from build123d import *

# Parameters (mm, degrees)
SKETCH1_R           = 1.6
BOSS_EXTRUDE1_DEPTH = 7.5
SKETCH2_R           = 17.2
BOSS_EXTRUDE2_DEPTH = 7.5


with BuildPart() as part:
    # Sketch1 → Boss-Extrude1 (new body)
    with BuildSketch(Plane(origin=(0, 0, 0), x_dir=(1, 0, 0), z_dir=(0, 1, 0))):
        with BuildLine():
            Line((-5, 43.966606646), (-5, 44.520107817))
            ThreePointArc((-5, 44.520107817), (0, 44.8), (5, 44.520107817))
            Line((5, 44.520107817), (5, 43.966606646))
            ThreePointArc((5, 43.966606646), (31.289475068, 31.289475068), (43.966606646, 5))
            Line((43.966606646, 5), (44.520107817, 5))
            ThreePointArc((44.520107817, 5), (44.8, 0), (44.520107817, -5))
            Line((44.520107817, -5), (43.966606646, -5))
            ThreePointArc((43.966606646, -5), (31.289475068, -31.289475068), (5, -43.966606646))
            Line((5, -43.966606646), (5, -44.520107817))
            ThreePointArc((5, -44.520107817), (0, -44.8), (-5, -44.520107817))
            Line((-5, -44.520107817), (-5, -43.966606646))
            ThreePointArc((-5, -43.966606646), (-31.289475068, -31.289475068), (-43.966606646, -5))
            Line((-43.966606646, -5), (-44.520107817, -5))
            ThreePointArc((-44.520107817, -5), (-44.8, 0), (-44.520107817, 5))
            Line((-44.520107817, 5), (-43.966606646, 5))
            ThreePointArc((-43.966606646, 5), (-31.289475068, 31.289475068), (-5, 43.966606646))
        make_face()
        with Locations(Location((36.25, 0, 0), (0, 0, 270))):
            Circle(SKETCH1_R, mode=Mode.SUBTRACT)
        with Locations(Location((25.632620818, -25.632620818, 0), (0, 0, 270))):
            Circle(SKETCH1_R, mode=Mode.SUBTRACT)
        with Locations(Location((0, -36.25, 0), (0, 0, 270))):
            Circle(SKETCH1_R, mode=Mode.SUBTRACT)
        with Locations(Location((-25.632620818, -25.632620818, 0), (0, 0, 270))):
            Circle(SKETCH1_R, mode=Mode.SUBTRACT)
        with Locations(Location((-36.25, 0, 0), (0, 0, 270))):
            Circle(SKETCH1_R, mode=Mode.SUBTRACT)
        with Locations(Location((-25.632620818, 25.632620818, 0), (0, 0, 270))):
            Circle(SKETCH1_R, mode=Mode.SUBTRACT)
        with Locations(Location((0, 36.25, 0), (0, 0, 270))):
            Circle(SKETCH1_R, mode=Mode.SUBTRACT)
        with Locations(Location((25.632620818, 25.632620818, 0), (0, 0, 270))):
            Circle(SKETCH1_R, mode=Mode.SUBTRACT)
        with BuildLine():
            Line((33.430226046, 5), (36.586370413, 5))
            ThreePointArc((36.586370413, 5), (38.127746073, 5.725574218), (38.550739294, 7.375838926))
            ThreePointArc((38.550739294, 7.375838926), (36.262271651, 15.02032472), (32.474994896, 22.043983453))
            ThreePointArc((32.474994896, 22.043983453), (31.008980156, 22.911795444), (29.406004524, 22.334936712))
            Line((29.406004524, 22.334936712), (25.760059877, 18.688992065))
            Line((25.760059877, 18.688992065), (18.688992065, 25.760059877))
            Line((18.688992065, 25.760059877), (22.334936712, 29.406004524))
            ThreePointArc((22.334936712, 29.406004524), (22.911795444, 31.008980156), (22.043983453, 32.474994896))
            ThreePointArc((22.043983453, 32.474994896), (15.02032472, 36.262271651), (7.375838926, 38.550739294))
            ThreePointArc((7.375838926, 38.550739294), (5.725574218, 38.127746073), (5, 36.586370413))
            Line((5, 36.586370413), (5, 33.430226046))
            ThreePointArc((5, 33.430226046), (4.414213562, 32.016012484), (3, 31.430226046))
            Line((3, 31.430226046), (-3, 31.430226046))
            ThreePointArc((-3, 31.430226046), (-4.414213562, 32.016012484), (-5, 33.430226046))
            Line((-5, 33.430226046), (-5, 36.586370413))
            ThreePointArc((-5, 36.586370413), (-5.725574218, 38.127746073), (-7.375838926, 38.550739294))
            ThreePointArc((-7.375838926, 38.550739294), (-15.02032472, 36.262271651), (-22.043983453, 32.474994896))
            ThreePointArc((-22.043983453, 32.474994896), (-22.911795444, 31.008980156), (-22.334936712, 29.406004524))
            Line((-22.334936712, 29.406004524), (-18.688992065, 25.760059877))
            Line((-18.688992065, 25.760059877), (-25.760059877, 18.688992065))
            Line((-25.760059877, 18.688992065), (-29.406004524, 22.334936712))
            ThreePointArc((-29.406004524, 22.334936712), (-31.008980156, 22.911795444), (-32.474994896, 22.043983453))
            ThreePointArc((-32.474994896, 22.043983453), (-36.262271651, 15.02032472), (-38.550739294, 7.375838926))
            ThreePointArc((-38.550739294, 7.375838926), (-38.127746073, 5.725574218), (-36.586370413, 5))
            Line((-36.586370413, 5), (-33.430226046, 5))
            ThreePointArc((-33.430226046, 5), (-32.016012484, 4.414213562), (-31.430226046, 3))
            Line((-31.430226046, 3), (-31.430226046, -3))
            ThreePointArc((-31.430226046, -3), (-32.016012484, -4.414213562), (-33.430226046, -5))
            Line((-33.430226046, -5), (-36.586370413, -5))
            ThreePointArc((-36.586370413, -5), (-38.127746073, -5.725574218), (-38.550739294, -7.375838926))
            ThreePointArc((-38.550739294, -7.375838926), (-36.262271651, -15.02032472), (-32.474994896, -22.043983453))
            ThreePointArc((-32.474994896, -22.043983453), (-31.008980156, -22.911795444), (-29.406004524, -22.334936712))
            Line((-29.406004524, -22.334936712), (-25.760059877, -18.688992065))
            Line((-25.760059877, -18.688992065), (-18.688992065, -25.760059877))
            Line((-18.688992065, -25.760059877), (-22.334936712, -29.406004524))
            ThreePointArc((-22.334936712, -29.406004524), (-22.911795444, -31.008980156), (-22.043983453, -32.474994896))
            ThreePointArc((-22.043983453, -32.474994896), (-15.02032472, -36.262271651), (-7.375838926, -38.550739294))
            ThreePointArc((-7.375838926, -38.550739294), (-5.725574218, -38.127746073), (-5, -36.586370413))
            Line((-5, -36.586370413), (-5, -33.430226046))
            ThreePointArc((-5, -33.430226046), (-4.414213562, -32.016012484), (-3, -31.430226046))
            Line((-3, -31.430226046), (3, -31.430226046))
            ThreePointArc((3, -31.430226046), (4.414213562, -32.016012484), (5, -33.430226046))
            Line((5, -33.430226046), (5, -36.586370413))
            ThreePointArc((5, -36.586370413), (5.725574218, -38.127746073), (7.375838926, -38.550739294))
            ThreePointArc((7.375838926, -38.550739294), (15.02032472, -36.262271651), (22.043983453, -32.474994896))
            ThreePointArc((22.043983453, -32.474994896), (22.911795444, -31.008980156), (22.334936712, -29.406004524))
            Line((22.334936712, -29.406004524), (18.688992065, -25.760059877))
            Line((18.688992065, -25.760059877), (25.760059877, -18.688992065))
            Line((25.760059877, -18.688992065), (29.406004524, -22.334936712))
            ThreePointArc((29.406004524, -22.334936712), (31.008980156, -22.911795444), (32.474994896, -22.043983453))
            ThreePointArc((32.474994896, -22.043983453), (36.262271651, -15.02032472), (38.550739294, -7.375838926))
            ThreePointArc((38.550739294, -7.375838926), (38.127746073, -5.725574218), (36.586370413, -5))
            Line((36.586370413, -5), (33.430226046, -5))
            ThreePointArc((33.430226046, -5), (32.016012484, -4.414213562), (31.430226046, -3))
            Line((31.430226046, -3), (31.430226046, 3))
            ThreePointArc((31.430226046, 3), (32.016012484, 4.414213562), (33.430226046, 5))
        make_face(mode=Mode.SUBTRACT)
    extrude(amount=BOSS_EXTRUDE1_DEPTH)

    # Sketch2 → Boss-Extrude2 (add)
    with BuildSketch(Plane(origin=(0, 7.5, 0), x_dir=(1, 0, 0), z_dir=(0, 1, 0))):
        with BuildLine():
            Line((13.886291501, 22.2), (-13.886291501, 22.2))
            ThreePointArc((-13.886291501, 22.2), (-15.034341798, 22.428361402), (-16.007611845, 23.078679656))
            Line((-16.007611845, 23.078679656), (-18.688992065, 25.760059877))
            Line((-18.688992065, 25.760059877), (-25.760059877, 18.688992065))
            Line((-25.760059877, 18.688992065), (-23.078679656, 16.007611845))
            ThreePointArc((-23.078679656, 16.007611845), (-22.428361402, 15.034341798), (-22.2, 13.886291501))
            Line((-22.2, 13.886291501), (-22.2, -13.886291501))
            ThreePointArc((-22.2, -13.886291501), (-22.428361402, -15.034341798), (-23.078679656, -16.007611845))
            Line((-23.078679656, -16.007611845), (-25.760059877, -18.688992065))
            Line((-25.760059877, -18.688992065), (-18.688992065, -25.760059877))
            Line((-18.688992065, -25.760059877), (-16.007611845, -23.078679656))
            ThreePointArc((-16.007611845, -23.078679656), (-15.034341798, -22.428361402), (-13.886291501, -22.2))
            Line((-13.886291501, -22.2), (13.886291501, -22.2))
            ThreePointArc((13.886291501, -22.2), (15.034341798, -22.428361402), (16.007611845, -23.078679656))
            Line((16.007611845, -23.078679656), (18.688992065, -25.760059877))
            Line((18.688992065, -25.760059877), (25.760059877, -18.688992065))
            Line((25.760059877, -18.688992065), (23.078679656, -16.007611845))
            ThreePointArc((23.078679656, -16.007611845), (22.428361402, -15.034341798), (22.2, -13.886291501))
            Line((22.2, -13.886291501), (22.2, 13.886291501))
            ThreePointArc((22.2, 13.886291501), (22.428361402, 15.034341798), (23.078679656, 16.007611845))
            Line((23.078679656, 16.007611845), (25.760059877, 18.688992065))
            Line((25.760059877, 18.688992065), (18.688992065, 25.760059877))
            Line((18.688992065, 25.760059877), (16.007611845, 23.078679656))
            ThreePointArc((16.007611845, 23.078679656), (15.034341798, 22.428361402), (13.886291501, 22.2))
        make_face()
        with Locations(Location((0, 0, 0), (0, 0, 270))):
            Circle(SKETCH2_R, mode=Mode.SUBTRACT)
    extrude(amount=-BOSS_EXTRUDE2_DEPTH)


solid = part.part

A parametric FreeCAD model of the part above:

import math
import FreeCAD as App
import Part
import Sketcher
from FreeCAD import Vector
Q = App.Units.Quantity

doc = App.newDocument("Part")
params = doc.addObject("Spreadsheet::Sheet", "Params")
for row, (alias, value) in enumerate([
    ("sketch1_radius", "2 mm"),
    ("sketch1_diameter", "3.2 mm"),
    ("sketch1_radius2", "44.8 mm"),
    ("sketch1_width", "6 mm"),
    ("sketch1_radius3", "44.25 mm"),
    ("pad1_length", "7.5 mm"),
    ("sketch2_radius", "3 mm"),
    ("sketch2_diameter", "34.4 mm"),
    ("sketch2_length", "10 mm"),
    ("pad2_length", "7.5 mm"),
], start=1):
    params.set(f"A{row}", alias)
    params.set(f"B{row}", "=" + value)
    params.setAlias(f"B{row}", alias)

body = doc.addObject("PartDesign::Body", "Body")

# Sketch on XZ plane
sketch1 = body.newObject("Sketcher::SketchObject", "Sketch")
sketch1.AttachmentSupport = (doc.getObject("XZ_Plane"), [""])
sketch1.MapMode = "FlatFace"
sketch1.addGeometry([
    Part.LineSegment(Vector(-5, -44.520108, 0), Vector(-5, -43.966607, 0)),  # 0
    Part.ArcOfCircle(Part.Circle(Vector(0, 0, 0), Vector(0, 0, 1), 44.25), math.radians(-173.512044), math.radians(-96.487956)),  # 1
    Part.LineSegment(Vector(-43.966607, -5, 0), Vector(-44.520108, -5, 0)),  # 2
    Part.ArcOfCircle(Part.Circle(Vector(0, 0, 0), Vector(0, 0, 1), 44.8), math.radians(173.592031), math.radians(186.407969)),  # 3
    Part.LineSegment(Vector(-44.520108, 5, 0), Vector(-43.966607, 5, 0)),  # 4
    Part.ArcOfCircle(Part.Circle(Vector(0, 0, 0), Vector(0, 0, 1), 44.25), math.radians(96.487956), math.radians(173.512044)),  # 5
    Part.LineSegment(Vector(-5, 43.966607, 0), Vector(-5, 44.520108, 0)),  # 6
    Part.ArcOfCircle(Part.Circle(Vector(0, 0, 0), Vector(0, 0, 1), 44.8), math.radians(83.592031), math.radians(96.407969)),  # 7
    Part.LineSegment(Vector(5, 44.520108, 0), Vector(5, 43.966607, 0)),  # 8
    Part.ArcOfCircle(Part.Circle(Vector(0, 0, 0), Vector(0, 0, 1), 44.25), math.radians(6.487956), math.radians(83.512044)),  # 9
    Part.LineSegment(Vector(43.966607, 5, 0), Vector(44.520108, 5, 0)),  # 10
    Part.ArcOfCircle(Part.Circle(Vector(0, 0, 0), Vector(0, 0, 1), 44.8), math.radians(-6.407969), math.radians(6.407969)),  # 11
    Part.LineSegment(Vector(44.520108, -5, 0), Vector(43.966607, -5, 0)),  # 12
    Part.ArcOfCircle(Part.Circle(Vector(0, 0, 0), Vector(0, 0, 1), 44.25), math.radians(-83.512044), math.radians(-6.487956)),  # 13
    Part.LineSegment(Vector(5, -43.966607, 0), Vector(5, -44.520108, 0)),  # 14
    Part.ArcOfCircle(Part.Circle(Vector(0, 0, 0), Vector(0, 0, 1), 44.8), math.radians(-96.407969), math.radians(-83.592031)),  # 15
    Part.Circle(Vector(25.632621, 25.632621, 0), Vector(0, 0, 1), 1.6),  # 16
    Part.Circle(Vector(0, 36.25, 0), Vector(0, 0, 1), 1.6),  # 17
    Part.Circle(Vector(-25.632621, 25.632621, 0), Vector(0, 0, 1), 1.6),  # 18
    Part.Circle(Vector(36.25, 0, 0), Vector(0, 0, 1), 1.6),  # 19
    Part.Circle(Vector(25.632621, -25.632621, 0), Vector(0, 0, 1), 1.6),  # 20
    Part.ArcOfCircle(Part.Circle(Vector(33.430226, -3, 0), Vector(0, 0, 1), 2), math.radians(-180), math.radians(-90)),  # 21
    Part.LineSegment(Vector(31.430226, -3, 0), Vector(31.430226, 3, 0)),  # 22
    Part.ArcOfCircle(Part.Circle(Vector(33.430226, 3, 0), Vector(0, 0, 1), 2), math.radians(90), math.radians(180)),  # 23
    Part.LineSegment(Vector(33.430226, 5, 0), Vector(36.58637, 5, 0)),  # 24
    Part.ArcOfCircle(Part.Circle(Vector(36.58637, 7, 0), Vector(0, 0, 1), 2), math.radians(-90), math.radians(10.831391)),  # 25
    Part.ArcOfCircle(Part.Circle(Vector(0, 0, 0), Vector(0, 0, 1), 39.25), math.radians(10.831391), math.radians(34.168609)),  # 26
    Part.ArcOfCircle(Part.Circle(Vector(30.820218, 20.920723, 0), Vector(0, 0, 1), 2), math.radians(34.168609), math.radians(135)),  # 27
    Part.LineSegment(Vector(29.406005, 22.334937, 0), Vector(25.76006, 18.688992, 0)),  # 28
    Part.LineSegment(Vector(25.76006, 18.688992, 0), Vector(18.688992, 25.76006, 0)),  # 29
    Part.LineSegment(Vector(18.688992, 25.76006, 0), Vector(22.334937, 29.406005, 0)),  # 30
    Part.ArcOfCircle(Part.Circle(Vector(20.920723, 30.820218, 0), Vector(0, 0, 1), 2), math.radians(-45), math.radians(55.831391)),  # 31
    Part.ArcOfCircle(Part.Circle(Vector(0, 0, 0), Vector(0, 0, 1), 39.25), math.radians(55.831391), math.radians(79.168609)),  # 32
    Part.ArcOfCircle(Part.Circle(Vector(7, 36.58637, 0), Vector(0, 0, 1), 2), math.radians(79.168609), math.radians(180)),  # 33
    Part.LineSegment(Vector(5, 36.58637, 0), Vector(5, 33.430226, 0)),  # 34
    Part.ArcOfCircle(Part.Circle(Vector(3, 33.430226, 0), Vector(0, 0, 1), 2), math.radians(-90), math.radians(0)),  # 35
    Part.LineSegment(Vector(3, 31.430226, 0), Vector(-3, 31.430226, 0)),  # 36
    Part.ArcOfCircle(Part.Circle(Vector(-3, 33.430226, 0), Vector(0, 0, 1), 2), math.radians(-180), math.radians(-90)),  # 37
    Part.LineSegment(Vector(-5, 33.430226, 0), Vector(-5, 36.58637, 0)),  # 38
    Part.ArcOfCircle(Part.Circle(Vector(-7, 36.58637, 0), Vector(0, 0, 1), 2), math.radians(0), math.radians(100.831391)),  # 39
    Part.ArcOfCircle(Part.Circle(Vector(0, 0, 0), Vector(0, 0, 1), 39.25), math.radians(100.831391), math.radians(124.168609)),  # 40
    Part.ArcOfCircle(Part.Circle(Vector(-20.920723, 30.820218, 0), Vector(0, 0, 1), 2), math.radians(124.168609), math.radians(225)),  # 41
    Part.LineSegment(Vector(-22.334937, 29.406005, 0), Vector(-18.688992, 25.76006, 0)),  # 42
    Part.LineSegment(Vector(-18.688992, 25.76006, 0), Vector(-25.76006, 18.688992, 0)),  # 43
    Part.LineSegment(Vector(-25.76006, 18.688992, 0), Vector(-29.406005, 22.334937, 0)),  # 44
    Part.ArcOfCircle(Part.Circle(Vector(-30.820218, 20.920723, 0), Vector(0, 0, 1), 2), math.radians(45), math.radians(145.831391)),  # 45
    Part.ArcOfCircle(Part.Circle(Vector(0, 0, 0), Vector(0, 0, 1), 39.25), math.radians(145.831391), math.radians(169.168609)),  # 46
    Part.ArcOfCircle(Part.Circle(Vector(-36.58637, 7, 0), Vector(0, 0, 1), 2), math.radians(169.168609), math.radians(270)),  # 47
    Part.LineSegment(Vector(-36.58637, 5, 0), Vector(-33.430226, 5, 0)),  # 48
    Part.ArcOfCircle(Part.Circle(Vector(-33.430226, 3, 0), Vector(0, 0, 1), 2), math.radians(0), math.radians(90)),  # 49
    Part.LineSegment(Vector(-31.430226, 3, 0), Vector(-31.430226, -3, 0)),  # 50
    Part.ArcOfCircle(Part.Circle(Vector(-33.430226, -3, 0), Vector(0, 0, 1), 2), math.radians(-90), math.radians(0)),  # 51
    Part.LineSegment(Vector(-33.430226, -5, 0), Vector(-36.58637, -5, 0)),  # 52
    Part.ArcOfCircle(Part.Circle(Vector(-36.58637, -7, 0), Vector(0, 0, 1), 2), math.radians(90), math.radians(190.831391)),  # 53
    Part.ArcOfCircle(Part.Circle(Vector(0, 0, 0), Vector(0, 0, 1), 39.25), math.radians(-169.168609), math.radians(-145.831391)),  # 54
    Part.ArcOfCircle(Part.Circle(Vector(-30.820218, -20.920723, 0), Vector(0, 0, 1), 2), math.radians(-145.831391), math.radians(-45)),  # 55
    Part.LineSegment(Vector(-29.406005, -22.334937, 0), Vector(-25.76006, -18.688992, 0)),  # 56
    Part.LineSegment(Vector(-25.76006, -18.688992, 0), Vector(-18.688992, -25.76006, 0)),  # 57
    Part.LineSegment(Vector(-18.688992, -25.76006, 0), Vector(-22.334937, -29.406005, 0)),  # 58
    Part.ArcOfCircle(Part.Circle(Vector(-20.920723, -30.820218, 0), Vector(0, 0, 1), 2), math.radians(135), math.radians(235.831391)),  # 59
    Part.ArcOfCircle(Part.Circle(Vector(0, 0, 0), Vector(0, 0, 1), 39.25), math.radians(-124.168609), math.radians(-100.831391)),  # 60
    Part.ArcOfCircle(Part.Circle(Vector(-7, -36.58637, 0), Vector(0, 0, 1), 2), math.radians(-100.831391), math.radians(0)),  # 61
    Part.LineSegment(Vector(-5, -36.58637, 0), Vector(-5, -33.430226, 0)),  # 62
    Part.ArcOfCircle(Part.Circle(Vector(-3, -33.430226, 0), Vector(0, 0, 1), 2), math.radians(90), math.radians(180)),  # 63
    Part.LineSegment(Vector(-3, -31.430226, 0), Vector(3, -31.430226, 0)),  # 64
    Part.ArcOfCircle(Part.Circle(Vector(3, -33.430226, 0), Vector(0, 0, 1), 2), math.radians(0), math.radians(90)),  # 65
    Part.LineSegment(Vector(5, -33.430226, 0), Vector(5, -36.58637, 0)),  # 66
    Part.ArcOfCircle(Part.Circle(Vector(7, -36.58637, 0), Vector(0, 0, 1), 2), math.radians(180), math.radians(280.831391)),  # 67
    Part.ArcOfCircle(Part.Circle(Vector(0, 0, 0), Vector(0, 0, 1), 39.25), math.radians(-79.168609), math.radians(-55.831391)),  # 68
    Part.ArcOfCircle(Part.Circle(Vector(20.920723, -30.820218, 0), Vector(0, 0, 1), 2), math.radians(-55.831391), math.radians(45)),  # 69
    Part.LineSegment(Vector(22.334937, -29.406005, 0), Vector(18.688992, -25.76006, 0)),  # 70
    Part.LineSegment(Vector(18.688992, -25.76006, 0), Vector(25.76006, -18.688992, 0)),  # 71
    Part.LineSegment(Vector(25.76006, -18.688992, 0), Vector(29.406005, -22.334937, 0)),  # 72
    Part.ArcOfCircle(Part.Circle(Vector(30.820218, -20.920723, 0), Vector(0, 0, 1), 2), math.radians(-135), math.radians(-34.168609)),  # 73
    Part.ArcOfCircle(Part.Circle(Vector(0, 0, 0), Vector(0, 0, 1), 39.25), math.radians(-34.168609), math.radians(-10.831391)),  # 74
    Part.ArcOfCircle(Part.Circle(Vector(36.58637, -7, 0), Vector(0, 0, 1), 2), math.radians(-10.831391), math.radians(90)),  # 75
    Part.LineSegment(Vector(36.58637, -5, 0), Vector(33.430226, -5, 0)),  # 76
    Part.Circle(Vector(-36.25, 0, 0), Vector(0, 0, 1), 1.6),  # 77
    Part.Circle(Vector(0, -36.25, 0), Vector(0, 0, 1), 1.6),  # 78
    Part.Circle(Vector(-25.632621, -25.632621, 0), Vector(0, 0, 1), 1.6),  # 79
], False)
sketch1.addConstraint([
    Sketcher.Constraint("Coincident", 0, 2, 1, 2),
    Sketcher.Constraint("Coincident", 1, 1, 2, 1),
    Sketcher.Constraint("Coincident", 2, 2, 3, 2),
    Sketcher.Constraint("Coincident", 3, 1, 4, 1),
    Sketcher.Constraint("Coincident", 4, 2, 5, 2),
    Sketcher.Constraint("Coincident", 5, 1, 6, 1),
    Sketcher.Constraint("Coincident", 6, 2, 7, 2),
    Sketcher.Constraint("Coincident", 7, 1, 8, 1),
    Sketcher.Constraint("Coincident", 8, 2, 9, 2),
    Sketcher.Constraint("Coincident", 9, 1, 10, 1),
    Sketcher.Constraint("Coincident", 10, 2, 11, 2),
    Sketcher.Constraint("Coincident", 11, 1, 12, 1),
    Sketcher.Constraint("Coincident", 12, 2, 13, 2),
    Sketcher.Constraint("Coincident", 13, 1, 14, 1),
    Sketcher.Constraint("Coincident", 14, 2, 15, 2),
    Sketcher.Constraint("Coincident", 15, 1, 0, 1),
    Sketcher.Constraint("Tangent", 21, 1, 22, 1),
    Sketcher.Constraint("Tangent", 22, 2, 23, 2),
    Sketcher.Constraint("Tangent", 23, 1, 24, 1),
    Sketcher.Constraint("Tangent", 24, 2, 25, 1),
    Sketcher.Constraint("Tangent", 25, 2, 26, 1),
    Sketcher.Constraint("Tangent", 26, 2, 27, 1),
    Sketcher.Constraint("Tangent", 27, 2, 28, 1),
    Sketcher.Constraint("Coincident", 28, 2, 29, 1),
    Sketcher.Constraint("Coincident", 29, 2, 30, 1),
    Sketcher.Constraint("Tangent", 30, 2, 31, 1),
    Sketcher.Constraint("Tangent", 31, 2, 32, 1),
    Sketcher.Constraint("Tangent", 32, 2, 33, 1),
    Sketcher.Constraint("Tangent", 33, 2, 34, 1),
    Sketcher.Constraint("Tangent", 34, 2, 35, 2),
    Sketcher.Constraint("Tangent", 35, 1, 36, 1),
    Sketcher.Constraint("Tangent", 36, 2, 37, 2),
    Sketcher.Constraint("Tangent", 37, 1, 38, 1),
    Sketcher.Constraint("Tangent", 38, 2, 39, 1),
    Sketcher.Constraint("Tangent", 39, 2, 40, 1),
    Sketcher.Constraint("Tangent", 40, 2, 41, 1),
    Sketcher.Constraint("Tangent", 41, 2, 42, 1),
    Sketcher.Constraint("Coincident", 42, 2, 43, 1),
    Sketcher.Constraint("Coincident", 43, 2, 44, 1),
    Sketcher.Constraint("Tangent", 44, 2, 45, 1),
    Sketcher.Constraint("Tangent", 45, 2, 46, 1),
    Sketcher.Constraint("Tangent", 46, 2, 47, 1),
    Sketcher.Constraint("Tangent", 47, 2, 48, 1),
    Sketcher.Constraint("Tangent", 48, 2, 49, 2),
    Sketcher.Constraint("Tangent", 49, 1, 50, 1),
    Sketcher.Constraint("Tangent", 50, 2, 51, 2),
    Sketcher.Constraint("Tangent", 51, 1, 52, 1),
    Sketcher.Constraint("Tangent", 52, 2, 53, 1),
    Sketcher.Constraint("Tangent", 53, 2, 54, 1),
    Sketcher.Constraint("Tangent", 54, 2, 55, 1),
    Sketcher.Constraint("Tangent", 55, 2, 56, 1),
    Sketcher.Constraint("Coincident", 56, 2, 57, 1),
    Sketcher.Constraint("Coincident", 57, 2, 58, 1),
    Sketcher.Constraint("Tangent", 58, 2, 59, 1),
    Sketcher.Constraint("Tangent", 59, 2, 60, 1),
    Sketcher.Constraint("Tangent", 60, 2, 61, 1),
    Sketcher.Constraint("Tangent", 61, 2, 62, 1),
    Sketcher.Constraint("Tangent", 62, 2, 63, 2),
    Sketcher.Constraint("Tangent", 63, 1, 64, 1),
    Sketcher.Constraint("Tangent", 64, 2, 65, 2),
    Sketcher.Constraint("Tangent", 65, 1, 66, 1),
    Sketcher.Constraint("Tangent", 66, 2, 67, 1),
    Sketcher.Constraint("Tangent", 67, 2, 68, 1),
    Sketcher.Constraint("Tangent", 68, 2, 69, 1),
    Sketcher.Constraint("Tangent", 69, 2, 70, 1),
    Sketcher.Constraint("Coincident", 70, 2, 71, 1),
    Sketcher.Constraint("Coincident", 71, 2, 72, 1),
    Sketcher.Constraint("Tangent", 72, 2, 73, 1),
    Sketcher.Constraint("Tangent", 73, 2, 74, 1),
    Sketcher.Constraint("Tangent", 74, 2, 75, 1),
    Sketcher.Constraint("Tangent", 75, 2, 76, 1),
    Sketcher.Constraint("Tangent", 76, 2, 21, 2),
    Sketcher.Constraint("Vertical", 0),
    Sketcher.Constraint("Horizontal", 2),
    Sketcher.Constraint("Horizontal", 4),
    Sketcher.Constraint("Vertical", 6),
    Sketcher.Constraint("Vertical", 8),
    Sketcher.Constraint("Horizontal", 10),
    Sketcher.Constraint("Horizontal", 12),
    Sketcher.Constraint("Vertical", 14),
    Sketcher.Constraint("Vertical", 22),
    Sketcher.Constraint("Horizontal", 24),
    Sketcher.Constraint("Vertical", 34),
    Sketcher.Constraint("Horizontal", 36),
    Sketcher.Constraint("Vertical", 38),
    Sketcher.Constraint("Horizontal", 48),
    Sketcher.Constraint("Vertical", 50),
    Sketcher.Constraint("Horizontal", 52),
    Sketcher.Constraint("Vertical", 62),
    Sketcher.Constraint("Horizontal", 64),
    Sketcher.Constraint("Vertical", 66),
    Sketcher.Constraint("Horizontal", 76),
    Sketcher.Constraint("Coincident", 1, 3, -1, 1),
    Sketcher.Constraint("Coincident", 3, 3, -1, 1),
    Sketcher.Constraint("Coincident", 5, 3, -1, 1),
    Sketcher.Constraint("Coincident", 7, 3, -1, 1),
    Sketcher.Constraint("Coincident", 9, 3, -1, 1),
    Sketcher.Constraint("Coincident", 11, 3, -1, 1),
    Sketcher.Constraint("Coincident", 13, 3, -1, 1),
    Sketcher.Constraint("Coincident", 15, 3, -1, 1),
    Sketcher.Constraint("Coincident", 26, 3, -1, 1),
    Sketcher.Constraint("Coincident", 32, 3, -1, 1),
    Sketcher.Constraint("Coincident", 40, 3, -1, 1),
    Sketcher.Constraint("Coincident", 46, 3, -1, 1),
    Sketcher.Constraint("Coincident", 54, 3, -1, 1),
    Sketcher.Constraint("Coincident", 60, 3, -1, 1),
    Sketcher.Constraint("Coincident", 68, 3, -1, 1),
    Sketcher.Constraint("Coincident", 74, 3, -1, 1),
    Sketcher.Constraint("Equal", 1, 5),
    Sketcher.Constraint("Equal", 3, 7),
    Sketcher.Constraint("Equal", 5, 9),
    Sketcher.Constraint("Equal", 7, 11),
    Sketcher.Constraint("Equal", 9, 13),
    Sketcher.Constraint("Equal", 11, 15),
    Sketcher.Constraint("Equal", 16, 17),
    Sketcher.Constraint("Equal", 17, 18),
    Sketcher.Constraint("Equal", 18, 19),
    Sketcher.Constraint("Equal", 19, 20),
    Sketcher.Constraint("Equal", 21, 23),
    Sketcher.Constraint("Equal", 23, 25),
    Sketcher.Constraint("Equal", 25, 27),
    Sketcher.Constraint("Equal", 27, 31),
    Sketcher.Constraint("Equal", 26, 32),
    Sketcher.Constraint("Equal", 31, 33),
    Sketcher.Constraint("Equal", 33, 35),
    Sketcher.Constraint("Equal", 35, 37),
    Sketcher.Constraint("Equal", 37, 39),
    Sketcher.Constraint("Equal", 32, 40),
    Sketcher.Constraint("Equal", 39, 41),
    Sketcher.Constraint("Equal", 41, 45),
    Sketcher.Constraint("Equal", 40, 46),
    Sketcher.Constraint("Equal", 45, 47),
    Sketcher.Constraint("Equal", 47, 49),
    Sketcher.Constraint("Equal", 49, 51),
    Sketcher.Constraint("Equal", 51, 53),
    Sketcher.Constraint("Equal", 46, 54),
    Sketcher.Constraint("Equal", 53, 55),
    Sketcher.Constraint("Equal", 55, 59),
    Sketcher.Constraint("Equal", 54, 60),
    Sketcher.Constraint("Equal", 59, 61),
    Sketcher.Constraint("Equal", 61, 63),
    Sketcher.Constraint("Equal", 63, 65),
    Sketcher.Constraint("Equal", 65, 67),
    Sketcher.Constraint("Equal", 60, 68),
    Sketcher.Constraint("Equal", 67, 69),
    Sketcher.Constraint("Equal", 69, 73),
    Sketcher.Constraint("Equal", 68, 74),
    Sketcher.Constraint("Equal", 73, 75),
    Sketcher.Constraint("Equal", 20, 77),
    Sketcher.Constraint("Equal", 77, 78),
    Sketcher.Constraint("Equal", 78, 79),
    Sketcher.Constraint("Symmetric", 18, 3, 20, 3, -1, 1),
    Sketcher.Constraint("Symmetric", 21, 3, 49, 3, -1, 1),
    Sketcher.Constraint("Symmetric", 35, 3, 63, 3, -1, 1),
    Sketcher.Constraint("Symmetric", 19, 3, 77, 3, -1, 1),
    Sketcher.Constraint("Symmetric", 17, 3, 78, 3, -1, 1),
    Sketcher.Constraint("Symmetric", 16, 3, 79, 3, -1, 1),
    Sketcher.Constraint("Symmetric", 27, 2, 55, 2, -1, 1),
    Sketcher.Constraint("Symmetric", 29, 2, 57, 2, -1, 1),
    Sketcher.Constraint("Symmetric", 41, 2, 69, 2, -1, 1),
    Sketcher.Constraint("Symmetric", 43, 2, 71, 2, -1, 1),
    Sketcher.Constraint("Symmetric", 16, 3, 18, 3, -2),
    Sketcher.Constraint("Symmetric", 30, 2, 41, 2, -2),
    Sketcher.Constraint("Symmetric", 28, 2, 43, 2, -2),
    Sketcher.Constraint("PointOnObject", 17, 3, -2),
    Sketcher.Constraint("PointOnObject", 19, 3, -1),
    Sketcher.Constraint("Perpendicular", 28, 29),
    Sketcher.Constraint("Perpendicular", 29, 30),
    Sketcher.Constraint("Perpendicular", 30, 42),
    Sketcher.Constraint("Perpendicular", 42, 43),
    Sketcher.Constraint("Perpendicular", 43, 44),
    Sketcher.Constraint("Perpendicular", 56, 57),
    Sketcher.Constraint("Perpendicular", 57, 58),
    Sketcher.Constraint("Perpendicular", 70, 71),
    Sketcher.Constraint("Perpendicular", 71, 72),
    Sketcher.Constraint("Horizontal", 33, 3, 39, 3),
    Sketcher.Constraint("Horizontal", 25, 3, 47, 3),
    Sketcher.Constraint("Horizontal", 21, 3, 51, 3),
    Sketcher.Constraint("Horizontal", 61, 3, 67, 3),
    Sketcher.Constraint("Horizontal", 6, 2, 7, 1),
    Sketcher.Constraint("Horizontal", 4, 2, 9, 1),
    Sketcher.Constraint("Horizontal", 2, 2, 11, 1),
    Sketcher.Constraint("Horizontal", 0, 2, 13, 1),
    Sketcher.Constraint("Horizontal", 10, 2, 23, 1),
    Sketcher.Constraint("Horizontal", 12, 2, 51, 1),
    Sketcher.Constraint("Vertical", 0, 2, 5, 1),
    Sketcher.Constraint("Vertical", 14, 2, 33, 2),
    Sketcher.Constraint("Equal", 64, 22),
    Sketcher.Constraint("Equal", 76, 34),
    Sketcher.Constraint("Equal", 28, 30),
    Sketcher.Constraint("Radius", 21, Q("2 mm")),
    Sketcher.Constraint("Diameter", 16, Q("3.2 mm")),
    Sketcher.Constraint("Radius", 3, Q("44.8 mm")),
    Sketcher.Constraint("DistanceX", 36, 2, 36, 1, Q("6 mm")),
    Sketcher.Constraint("Radius", 1, Q("44.25 mm")),
    Sketcher.Constraint("Radius", 26, Q("39.25 mm")),
    Sketcher.Constraint("Distance", 29, Q("10 mm")),
    Sketcher.Constraint("DistanceY", -1, 1, 17, 3, Q("36.25 mm")),
    Sketcher.Constraint("DistanceX", -1, 1, 19, 3, Q("36.25 mm")),
    Sketcher.Constraint("DistanceX", 24, 1, 24, 2, Q("3.156144 mm")),
    Sketcher.Constraint("DistanceX", -1, 1, 16, 3, Q("25.632621 mm")),
    Sketcher.Constraint("DistanceY", -1, 1, 16, 3, Q("25.632621 mm")),
    Sketcher.Constraint("DistanceX", -1, 1, 28, 2, Q("25.76006 mm")),
])
sketch1.setExpression("Constraints[190]", "Params.sketch1_radius")
sketch1.setExpression("Constraints[191]", "Params.sketch1_diameter")
sketch1.setExpression("Constraints[192]", "Params.sketch1_radius2")
sketch1.setExpression("Constraints[193]", "Params.sketch1_width")
sketch1.setExpression("Constraints[194]", "Params.sketch1_radius3")
pad1 = body.newObject("PartDesign::Pad", "Pad")
pad1.Profile = sketch1
pad1.setExpression("Length", "Params.pad1_length")
pad1.Reversed = True

# Sketch on XZ plane
sketch2 = body.newObject("Sketcher::SketchObject", "Sketch001")
sketch2.AttachmentSupport = (doc.getObject("XZ_Plane"), [""])
sketch2.MapMode = "FlatFace"
sketch2.AttachmentOffset = App.Placement(Vector(0, 0, -7.5), App.Rotation())
sketch2.addGeometry([
    Part.LineSegment(Vector(13.886292, -22.2, 0), Vector(-13.886292, -22.2, 0)),  # 0
    Part.ArcOfCircle(Part.Circle(Vector(-13.886292, -25.2, 0), Vector(0, 0, 1), 3), math.radians(90), math.radians(135)),  # 1
    Part.LineSegment(Vector(-16.007612, -23.07868, 0), Vector(-18.688992, -25.76006, 0)),  # 2
    Part.LineSegment(Vector(-18.688992, -25.76006, 0), Vector(-25.76006, -18.688992, 0)),  # 3
    Part.LineSegment(Vector(-25.76006, -18.688992, 0), Vector(-23.07868, -16.007612, 0)),  # 4
    Part.ArcOfCircle(Part.Circle(Vector(-25.2, -13.886292, 0), Vector(0, 0, 1), 3), math.radians(-45), math.radians(0)),  # 5
    Part.LineSegment(Vector(-22.2, -13.886292, 0), Vector(-22.2, 13.886292, 0)),  # 6
    Part.ArcOfCircle(Part.Circle(Vector(-25.2, 13.886292, 0), Vector(0, 0, 1), 3), math.radians(0), math.radians(45)),  # 7
    Part.LineSegment(Vector(-23.07868, 16.007612, 0), Vector(-25.76006, 18.688992, 0)),  # 8
    Part.LineSegment(Vector(-25.76006, 18.688992, 0), Vector(-18.688992, 25.76006, 0)),  # 9
    Part.LineSegment(Vector(-18.688992, 25.76006, 0), Vector(-16.007612, 23.07868, 0)),  # 10
    Part.ArcOfCircle(Part.Circle(Vector(-13.886292, 25.2, 0), Vector(0, 0, 1), 3), math.radians(-135), math.radians(-90)),  # 11
    Part.LineSegment(Vector(-13.886292, 22.2, 0), Vector(13.886292, 22.2, 0)),  # 12
    Part.ArcOfCircle(Part.Circle(Vector(13.886292, 25.2, 0), Vector(0, 0, 1), 3), math.radians(-90), math.radians(-45)),  # 13
    Part.LineSegment(Vector(16.007612, 23.07868, 0), Vector(18.688992, 25.76006, 0)),  # 14
    Part.LineSegment(Vector(18.688992, 25.76006, 0), Vector(25.76006, 18.688992, 0)),  # 15
    Part.LineSegment(Vector(25.76006, 18.688992, 0), Vector(23.07868, 16.007612, 0)),  # 16
    Part.ArcOfCircle(Part.Circle(Vector(25.2, 13.886292, 0), Vector(0, 0, 1), 3), math.radians(135), math.radians(180)),  # 17
    Part.LineSegment(Vector(22.2, 13.886292, 0), Vector(22.2, -13.886292, 0)),  # 18
    Part.ArcOfCircle(Part.Circle(Vector(25.2, -13.886292, 0), Vector(0, 0, 1), 3), math.radians(180), math.radians(225)),  # 19
    Part.LineSegment(Vector(23.07868, -16.007612, 0), Vector(25.76006, -18.688992, 0)),  # 20
    Part.LineSegment(Vector(25.76006, -18.688992, 0), Vector(18.688992, -25.76006, 0)),  # 21
    Part.LineSegment(Vector(18.688992, -25.76006, 0), Vector(16.007612, -23.07868, 0)),  # 22
    Part.ArcOfCircle(Part.Circle(Vector(13.886292, -25.2, 0), Vector(0, 0, 1), 3), math.radians(45), math.radians(90)),  # 23
    Part.Circle(Vector(0, 0, 0), Vector(0, 0, 1), 17.2),  # 24
], False)
sketch2.addConstraint([
    Sketcher.Constraint("Tangent", 0, 2, 1, 1),
    Sketcher.Constraint("Tangent", 1, 2, 2, 1),
    Sketcher.Constraint("Coincident", 2, 2, 3, 1),
    Sketcher.Constraint("Coincident", 3, 2, 4, 1),
    Sketcher.Constraint("Tangent", 4, 2, 5, 1),
    Sketcher.Constraint("Tangent", 5, 2, 6, 1),
    Sketcher.Constraint("Tangent", 6, 2, 7, 1),
    Sketcher.Constraint("Tangent", 7, 2, 8, 1),
    Sketcher.Constraint("Coincident", 8, 2, 9, 1),
    Sketcher.Constraint("Coincident", 9, 2, 10, 1),
    Sketcher.Constraint("Tangent", 10, 2, 11, 1),
    Sketcher.Constraint("Tangent", 11, 2, 12, 1),
    Sketcher.Constraint("Tangent", 12, 2, 13, 1),
    Sketcher.Constraint("Tangent", 13, 2, 14, 1),
    Sketcher.Constraint("Coincident", 14, 2, 15, 1),
    Sketcher.Constraint("Coincident", 15, 2, 16, 1),
    Sketcher.Constraint("Tangent", 16, 2, 17, 1),
    Sketcher.Constraint("Tangent", 17, 2, 18, 1),
    Sketcher.Constraint("Tangent", 18, 2, 19, 1),
    Sketcher.Constraint("Tangent", 19, 2, 20, 1),
    Sketcher.Constraint("Coincident", 20, 2, 21, 1),
    Sketcher.Constraint("Coincident", 21, 2, 22, 1),
    Sketcher.Constraint("Tangent", 22, 2, 23, 1),
    Sketcher.Constraint("Tangent", 23, 2, 0, 1),
    Sketcher.Constraint("Horizontal", 0),
    Sketcher.Constraint("Vertical", 6),
    Sketcher.Constraint("Horizontal", 12),
    Sketcher.Constraint("Vertical", 18),
    Sketcher.Constraint("Coincident", 24, 3, -1, 1),
    Sketcher.Constraint("Equal", 1, 5),
    Sketcher.Constraint("Equal", 5, 7),
    Sketcher.Constraint("Equal", 7, 11),
    Sketcher.Constraint("Equal", 11, 13),
    Sketcher.Constraint("Equal", 13, 17),
    Sketcher.Constraint("Equal", 17, 19),
    Sketcher.Constraint("Equal", 19, 23),
    Sketcher.Constraint("Symmetric", 1, 3, 13, 3, -1, 1),
    Sketcher.Constraint("Symmetric", 5, 3, 17, 3, -1, 1),
    Sketcher.Constraint("Symmetric", 2, 2, 14, 2, -1, 1),
    Sketcher.Constraint("Symmetric", 3, 2, 15, 2, -1, 1),
    Sketcher.Constraint("Symmetric", 7, 2, 19, 2, -1, 1),
    Sketcher.Constraint("Symmetric", 9, 2, 21, 2, -1, 1),
    Sketcher.Constraint("Symmetric", 10, 2, 13, 2, -2),
    Sketcher.Constraint("Symmetric", 8, 2, 15, 2, -2),
    Sketcher.Constraint("Perpendicular", 2, 3),
    Sketcher.Constraint("Perpendicular", 3, 4),
    Sketcher.Constraint("Perpendicular", 4, 8),
    Sketcher.Constraint("Perpendicular", 8, 9),
    Sketcher.Constraint("Perpendicular", 9, 10),
    Sketcher.Constraint("Perpendicular", 20, 21),
    Sketcher.Constraint("Perpendicular", 21, 22),
    Sketcher.Constraint("Equal", 12, 6),
    Sketcher.Constraint("Equal", 2, 4),
    Sketcher.Constraint("Radius", 1, Q("3 mm")),
    Sketcher.Constraint("Diameter", 24, Q("34.4 mm")),
    Sketcher.Constraint("Distance", 3, Q("10 mm")),
    Sketcher.Constraint("DistanceY", 1, 3, -1, 1, Q("25.2 mm")),
    Sketcher.Constraint("DistanceX", 2, 2, 1, 3, Q("4.802701 mm")),
])
sketch2.setExpression("Constraints[53]", "Params.sketch2_radius")
sketch2.setExpression("Constraints[54]", "Params.sketch2_diameter")
sketch2.setExpression("Constraints[55]", "Params.sketch2_length")
pad2 = body.newObject("PartDesign::Pad", "Pad001")
pad2.Profile = sketch2
pad2.setExpression("Length", "Params.pad2_length")

doc.recompute()
